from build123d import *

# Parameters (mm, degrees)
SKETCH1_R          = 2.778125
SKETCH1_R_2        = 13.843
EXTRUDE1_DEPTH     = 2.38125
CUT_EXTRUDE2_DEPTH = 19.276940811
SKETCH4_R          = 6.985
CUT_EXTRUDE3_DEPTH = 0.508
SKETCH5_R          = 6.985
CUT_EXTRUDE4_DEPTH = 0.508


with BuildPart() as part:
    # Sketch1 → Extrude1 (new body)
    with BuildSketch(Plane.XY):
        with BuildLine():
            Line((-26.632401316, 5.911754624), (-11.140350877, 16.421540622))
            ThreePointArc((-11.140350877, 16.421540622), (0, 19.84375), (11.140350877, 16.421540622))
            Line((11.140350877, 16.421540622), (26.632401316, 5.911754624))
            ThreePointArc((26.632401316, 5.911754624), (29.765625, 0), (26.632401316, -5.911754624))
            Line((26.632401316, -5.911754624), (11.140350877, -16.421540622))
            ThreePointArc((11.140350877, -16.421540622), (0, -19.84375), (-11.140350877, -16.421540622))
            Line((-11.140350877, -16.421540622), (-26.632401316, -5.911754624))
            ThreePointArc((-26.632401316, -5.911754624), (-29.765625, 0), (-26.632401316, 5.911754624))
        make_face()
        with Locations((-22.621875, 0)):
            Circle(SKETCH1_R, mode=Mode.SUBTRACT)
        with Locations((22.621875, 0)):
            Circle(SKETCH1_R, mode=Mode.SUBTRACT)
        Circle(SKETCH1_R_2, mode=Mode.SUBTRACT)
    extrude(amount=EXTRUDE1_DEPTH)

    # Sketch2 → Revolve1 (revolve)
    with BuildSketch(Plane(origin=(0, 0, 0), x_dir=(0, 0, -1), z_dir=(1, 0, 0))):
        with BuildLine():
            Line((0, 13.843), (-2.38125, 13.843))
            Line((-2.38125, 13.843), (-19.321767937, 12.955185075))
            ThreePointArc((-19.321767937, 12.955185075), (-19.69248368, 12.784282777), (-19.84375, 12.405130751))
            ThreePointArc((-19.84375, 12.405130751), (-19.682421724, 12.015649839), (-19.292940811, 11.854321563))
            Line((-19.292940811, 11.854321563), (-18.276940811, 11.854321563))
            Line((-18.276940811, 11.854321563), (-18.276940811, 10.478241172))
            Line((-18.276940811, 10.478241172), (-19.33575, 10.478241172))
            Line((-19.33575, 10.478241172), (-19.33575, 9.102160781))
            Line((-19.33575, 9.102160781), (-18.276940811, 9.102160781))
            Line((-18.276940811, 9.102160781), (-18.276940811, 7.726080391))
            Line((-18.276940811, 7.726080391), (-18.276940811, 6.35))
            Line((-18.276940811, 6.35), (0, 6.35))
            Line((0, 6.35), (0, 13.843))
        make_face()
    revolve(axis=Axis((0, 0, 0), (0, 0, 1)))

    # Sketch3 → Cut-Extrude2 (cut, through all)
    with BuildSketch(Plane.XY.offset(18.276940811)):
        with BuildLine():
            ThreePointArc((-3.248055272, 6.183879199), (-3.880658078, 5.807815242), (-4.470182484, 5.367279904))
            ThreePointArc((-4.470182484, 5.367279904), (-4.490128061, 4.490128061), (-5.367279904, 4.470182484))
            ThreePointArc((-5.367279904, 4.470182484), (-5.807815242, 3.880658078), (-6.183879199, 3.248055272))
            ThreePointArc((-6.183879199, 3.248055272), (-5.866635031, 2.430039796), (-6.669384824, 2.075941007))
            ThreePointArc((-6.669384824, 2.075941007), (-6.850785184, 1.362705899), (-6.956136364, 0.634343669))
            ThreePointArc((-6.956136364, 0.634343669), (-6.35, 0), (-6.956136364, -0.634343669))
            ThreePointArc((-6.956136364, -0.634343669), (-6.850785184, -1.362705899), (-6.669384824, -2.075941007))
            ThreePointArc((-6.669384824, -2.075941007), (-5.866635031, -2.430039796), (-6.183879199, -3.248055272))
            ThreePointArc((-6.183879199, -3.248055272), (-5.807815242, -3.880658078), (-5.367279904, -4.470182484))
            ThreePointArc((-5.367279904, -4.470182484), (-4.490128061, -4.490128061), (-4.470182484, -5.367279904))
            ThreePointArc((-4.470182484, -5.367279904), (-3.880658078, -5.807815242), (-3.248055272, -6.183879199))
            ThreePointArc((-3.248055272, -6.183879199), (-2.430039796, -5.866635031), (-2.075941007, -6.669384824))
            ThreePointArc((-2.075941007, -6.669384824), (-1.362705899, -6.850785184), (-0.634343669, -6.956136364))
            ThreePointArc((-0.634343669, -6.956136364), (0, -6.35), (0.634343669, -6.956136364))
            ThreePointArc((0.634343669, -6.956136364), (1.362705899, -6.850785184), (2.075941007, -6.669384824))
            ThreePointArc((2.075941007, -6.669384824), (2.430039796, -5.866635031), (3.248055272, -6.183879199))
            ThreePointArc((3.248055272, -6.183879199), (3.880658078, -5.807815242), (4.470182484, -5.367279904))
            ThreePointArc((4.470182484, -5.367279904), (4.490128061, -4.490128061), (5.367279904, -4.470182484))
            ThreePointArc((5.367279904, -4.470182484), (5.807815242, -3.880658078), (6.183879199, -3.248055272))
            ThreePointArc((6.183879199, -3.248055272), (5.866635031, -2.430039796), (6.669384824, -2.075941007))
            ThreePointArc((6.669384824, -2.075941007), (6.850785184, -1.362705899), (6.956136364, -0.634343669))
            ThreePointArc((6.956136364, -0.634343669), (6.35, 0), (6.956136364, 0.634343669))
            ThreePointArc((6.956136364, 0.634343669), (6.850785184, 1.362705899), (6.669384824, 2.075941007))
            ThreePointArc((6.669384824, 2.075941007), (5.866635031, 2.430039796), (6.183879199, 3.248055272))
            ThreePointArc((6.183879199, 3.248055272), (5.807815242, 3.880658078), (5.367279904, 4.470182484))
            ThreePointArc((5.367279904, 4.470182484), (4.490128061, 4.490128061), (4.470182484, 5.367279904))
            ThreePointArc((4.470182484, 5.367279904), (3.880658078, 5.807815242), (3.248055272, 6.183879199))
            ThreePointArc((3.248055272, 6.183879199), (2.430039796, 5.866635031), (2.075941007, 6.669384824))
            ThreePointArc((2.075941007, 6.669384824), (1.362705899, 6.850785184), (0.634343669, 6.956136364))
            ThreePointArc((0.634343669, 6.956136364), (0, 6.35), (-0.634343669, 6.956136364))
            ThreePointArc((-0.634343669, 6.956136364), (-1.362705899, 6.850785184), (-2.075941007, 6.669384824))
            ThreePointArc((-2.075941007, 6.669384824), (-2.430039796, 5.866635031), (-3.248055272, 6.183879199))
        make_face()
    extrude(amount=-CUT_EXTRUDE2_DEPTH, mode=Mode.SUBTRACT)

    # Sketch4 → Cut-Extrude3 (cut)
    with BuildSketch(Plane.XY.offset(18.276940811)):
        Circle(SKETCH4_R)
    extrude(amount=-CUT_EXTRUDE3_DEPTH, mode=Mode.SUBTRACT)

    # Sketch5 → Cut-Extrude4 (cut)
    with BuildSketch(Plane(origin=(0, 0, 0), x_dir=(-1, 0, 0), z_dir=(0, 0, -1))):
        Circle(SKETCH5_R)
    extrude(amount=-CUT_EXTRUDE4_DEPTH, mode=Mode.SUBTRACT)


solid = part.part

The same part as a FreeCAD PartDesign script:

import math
import FreeCAD as App
import Part
import Sketcher

V = App.Vector
Q = App.Units.Quantity

doc = App.newDocument("Part")
body = doc.addObject("PartDesign::Body", "Body")

# Sketch on XY plane
sketch1 = body.newObject("Sketcher::SketchObject", "Sketch")
sketch1.AttachmentSupport = (doc.getObject("XY_Plane"), [""])
sketch1.MapMode = "FlatFace"
sketch1.addGeometry([
    Part.LineSegment(V(-11.140351, 16.421541, 0), V(-26.632401, 5.911755, 0)),  # 0
    Part.ArcOfCircle(Part.Circle(V(-22.621875, 0, 0), V(0, 0, 1), 7.14375), math.radians(124.152915), math.radians(235.847085)),  # 1
    Part.LineSegment(V(-26.632401, -5.911755, 0), V(-11.140351, -16.421541, 0)),  # 2
    Part.ArcOfCircle(Part.Circle(V(0, 0, 0), V(0, 0, 1), 19.84375), math.radians(-124.152915), math.radians(-55.847085)),  # 3
    Part.LineSegment(V(11.140351, -16.421541, 0), V(26.632401, -5.911755, 0)),  # 4
    Part.ArcOfCircle(Part.Circle(V(22.621875, 0, 0), V(0, 0, 1), 7.14375), math.radians(-55.847085), math.radians(55.847085)),  # 5
    Part.LineSegment(V(26.632401, 5.911755, 0), V(11.140351, 16.421541, 0)),  # 6
    Part.ArcOfCircle(Part.Circle(V(0, 0, 0), V(0, 0, 1), 19.84375), math.radians(55.847085), math.radians(124.152915)),  # 7
    Part.Circle(V(22.621875, 0, 0), V(0, 0, 1), 2.778125),  # 8
    Part.Circle(V(0, 0, 0), V(0, 0, 1), 13.843),  # 9
    Part.Circle(V(-22.621875, 0, 0), V(0, 0, 1), 2.778125),  # 10
], False)
sketch1.addConstraint([
    Sketcher.Constraint("Tangent", 0, 2, 1, 1),
    Sketcher.Constraint("Tangent", 1, 2, 2, 1),
    Sketcher.Constraint("Tangent", 2, 2, 3, 1),
    Sketcher.Constraint("Tangent", 3, 2, 4, 1),
    Sketcher.Constraint("Tangent", 4, 2, 5, 1),
    Sketcher.Constraint("Tangent", 5, 2, 6, 1),
    Sketcher.Constraint("Tangent", 6, 2, 7, 1),
    Sketcher.Constraint("Tangent", 7, 2, 0, 1),
    Sketcher.Constraint("Coincident", 3, 3, -1, 1),
    Sketcher.Constraint("Coincident", 7, 3, -1, 1),
    Sketcher.Constraint("Coincident", 9, 3, -1, 1),
    Sketcher.Constraint("Coincident", 8, 3, 5, 3),
    Sketcher.Constraint("Coincident", 10, 3, 1, 3),
    Sketcher.Constraint("Equal", 1, 5),
    Sketcher.Constraint("Equal", 3, 7),
    Sketcher.Constraint("Equal", 8, 10),
    Sketcher.Constraint("Symmetric", 1, 3, 5, 3, -1, 1),
    Sketcher.Constraint("PointOnObject", 1, 3, -1),
    Sketcher.Constraint("Diameter", 9, Q("1.09 in")),
    Sketcher.Constraint("Diameter", 8, Q("0.21875 in")),
    Sketcher.Constraint("Radius", 1, Q("0.28125 in")),
    Sketcher.Constraint("Radius", 3, Q("0.78125 in")),
    Sketcher.Constraint("DistanceX", 1, 3, -1, 1, Q("0.890625 in")),
])
pad1 = body.newObject("PartDesign::Pad", "Pad")
pad1.Profile = sketch1
pad1.Length = Q("0.09375 in")

# Sketch on YZ plane
sketch2 = body.newObject("Sketcher::SketchObject", "Sketch001")
sketch2.AttachmentSupport = (doc.getObject("YZ_Plane"), [""])
sketch2.MapMode = "FlatFace"
sketch2.addGeometry([
    Part.LineSegment(V(13.843, 0, 0), V(13.843, 2.38125, 0)),  # 0
    Part.LineSegment(V(13.843, 2.38125, 0), V(12.955185, 19.321768, 0)),  # 1
    Part.ArcOfCircle(Part.Circle(V(12.405131, 19.292941, 0), V(0, 0, 1), 0.550809), math.radians(3), math.radians(90)),  # 2
    Part.ArcOfCircle(Part.Circle(V(12.405131, 19.292941, 0), V(0, 0, 1), 0.550809), math.radians(90), math.radians(180)),  # 3
    Part.LineSegment(V(11.854322, 19.292941, 0), V(11.854322, 18.276941, 0)),  # 4
    Part.LineSegment(V(11.854322, 18.276941, 0), V(10.478241, 18.276941, 0)),  # 5
    Part.LineSegment(V(10.478241, 18.276941, 0), V(10.478241, 19.33575, 0)),  # 6
    Part.LineSegment(V(10.478241, 19.33575, 0), V(9.102161, 19.33575, 0)),  # 7
    Part.LineSegment(V(9.102161, 19.33575, 0), V(9.102161, 18.276941, 0)),  # 8
    Part.LineSegment(V(9.102161, 18.276941, 0), V(6.35, 18.276941, 0)),  # 9
    Part.LineSegment(V(6.35, 18.276941, 0), V(6.35, 0, 0)),  # 10
    Part.LineSegment(V(6.35, 0, 0), V(13.843, 0, 0)),  # 11
], False)
sketch2.addConstraint([
    Sketcher.Constraint("Coincident", 0, 2, 1, 1),
    Sketcher.Constraint("Tangent", 1, 2, 2, 1),
    Sketcher.Constraint("Tangent", 2, 2, 3, 1),
    Sketcher.Constraint("Tangent", 3, 2, 4, 1),
    Sketcher.Constraint("Coincident", 4, 2, 5, 1),
    Sketcher.Constraint("Coincident", 5, 2, 6, 1),
    Sketcher.Constraint("Coincident", 6, 2, 7, 1),
    Sketcher.Constraint("Coincident", 7, 2, 8, 1),
    Sketcher.Constraint("Coincident", 8, 2, 9, 1),
    Sketcher.Constraint("Coincident", 9, 2, 10, 1),
    Sketcher.Constraint("Coincident", 10, 2, 11, 1),
    Sketcher.Constraint("Coincident", 11, 2, 0, 1),
    Sketcher.Constraint("Vertical", 0),
    Sketcher.Constraint("Vertical", 4),
    Sketcher.Constraint("Horizontal", 5),
    Sketcher.Constraint("Vertical", 6),
    Sketcher.Constraint("Horizontal", 7),
    Sketcher.Constraint("Vertical", 8),
    Sketcher.Constraint("Horizontal", 9),
    Sketcher.Constraint("Vertical", 10),
    Sketcher.Constraint("Horizontal", 11),
    Sketcher.Constraint("Equal", 2, 3),
    Sketcher.Constraint("PointOnObject", 10, 2, -1),
    Sketcher.Constraint("Horizontal", 5, 2, 8, 2),
    Sketcher.Constraint("Vertical", 3, 3, 2, 2),
    Sketcher.Constraint("Equal", 5, 7),
    Sketcher.Constraint("Angle", 1, Q("93 deg")),
    Sketcher.Constraint("DistanceY", 4, 2, 4, 1, Q("0.04 in")),
    Sketcher.Constraint("DistanceX", 11, 1, 11, 2, Q("0.295 in")),
    Sketcher.Constraint("DistanceY", 0, 1, 0, 2, Q("0.09375 in")),
    Sketcher.Constraint("DistanceX", -1, 1, 9, 2, Q("0.25 in")),
    Sketcher.Constraint("DistanceY", -1, 1, 2, 2, Q("0.78125 in")),
    Sketcher.Constraint("Radius", 2, Q("0.550809 mm")),
    Sketcher.Constraint("DistanceX", 5, 2, 5, 1, Q("1.37608 mm")),
    Sketcher.Constraint("DistanceY", 6, 1, 6, 2, Q("1.058809 mm")),
])
revolution = body.newObject("PartDesign::Revolution", "Revolution")
revolution.Profile = sketch2
revolution.ReferenceAxis = (sketch2, ["V_Axis"])
revolution.Angle = 360

# Sketch on XY plane
sketch3 = body.newObject("Sketcher::SketchObject", "Sketch002")
sketch3.AttachmentSupport = (doc.getObject("XY_Plane"), [""])
sketch3.MapMode = "FlatFace"
sketch3.AttachmentOffset = App.Placement(V(0, 0, 18.276941), App.Rotation())
sketch3.addGeometry([
    Part.ArcOfCircle(Part.Circle(V(0, 0, 0), V(0, 0, 1), 6.985), math.radians(117.710502), math.radians(129.789497)),  # 0
    Part.ArcOfCircle(Part.Circle(V(-4.939141, 4.939141, 0), V(0, 0, 1), 0.635), math.radians(-132.394749), math.radians(42.394749)),  # 1
    Part.ArcOfCircle(Part.Circle(V(0, 0, 0), V(0, 0, 1), 6.985), math.radians(140.210503), math.radians(152.289498)),  # 2
    Part.ArcOfCircle(Part.Circle(V(-6.453299, 2.673044, 0), V(0, 0, 1), 0.635), math.radians(-109.894749), math.radians(64.894749)),  # 3
    Part.ArcOfCircle(Part.Circle(V(0, 0, 0), V(0, 0, 1), 6.985), math.radians(162.710502), math.radians(174.789497)),  # 4
    Part.ArcOfCircle(Part.Circle(V(-6.985, 0, 0), V(0, 0, 1), 0.635), math.radians(-87.394749), math.radians(87.394749)),  # 5
    Part.ArcOfCircle(Part.Circle(V(0, 0, 0), V(0, 0, 1), 6.985), math.radians(-174.789497), math.radians(-162.710502)),  # 6
    Part.ArcOfCircle(Part.Circle(V(-6.453299, -2.673044, 0), V(0, 0, 1), 0.635), math.radians(-64.894749), math.radians(109.894749)),  # 7
    Part.ArcOfCircle(Part.Circle(V(0, 0, 0), V(0, 0, 1), 6.985), math.radians(-152.289498), math.radians(-140.210503)),  # 8
    Part.ArcOfCircle(Part.Circle(V(-4.939141, -4.939141, 0), V(0, 0, 1), 0.635), math.radians(-42.394749), math.radians(132.394749)),  # 9
    Part.ArcOfCircle(Part.Circle(V(0, 0, 0), V(0, 0, 1), 6.985), math.radians(-129.789497), math.radians(-117.710502)),  # 10
    Part.ArcOfCircle(Part.Circle(V(-2.673044, -6.453299, 0), V(0, 0, 1), 0.635), math.radians(-19.894749), math.radians(154.894749)),  # 11
    Part.ArcOfCircle(Part.Circle(V(0, 0, 0), V(0, 0, 1), 6.985), math.radians(-107.289498), math.radians(-95.210503)),  # 12
    Part.ArcOfCircle(Part.Circle(V(0, -6.985, 0), V(0, 0, 1), 0.635), math.radians(2.605251), math.radians(177.394749)),  # 13
    Part.ArcOfCircle(Part.Circle(V(0, 0, 0), V(0, 0, 1), 6.985), math.radians(-84.789497), math.radians(-72.710502)),  # 14
    Part.ArcOfCircle(Part.Circle(V(2.673044, -6.453299, 0), V(0, 0, 1), 0.635), math.radians(25.105251), math.radians(199.894749)),  # 15
    Part.ArcOfCircle(Part.Circle(V(0, 0, 0), V(0, 0, 1), 6.985), math.radians(-62.289498), math.radians(-50.210503)),  # 16
    Part.ArcOfCircle(Part.Circle(V(4.939141, -4.939141, 0), V(0, 0, 1), 0.635), math.radians(47.605251), math.radians(222.394749)),  # 17
    Part.ArcOfCircle(Part.Circle(V(0, 0, 0), V(0, 0, 1), 6.985), math.radians(-39.789497), math.radians(-27.710502)),  # 18
    Part.ArcOfCircle(Part.Circle(V(6.453299, -2.673044, 0), V(0, 0, 1), 0.635), math.radians(70.105251), math.radians(244.894749)),  # 19
    Part.ArcOfCircle(Part.Circle(V(0, 0, 0), V(0, 0, 1), 6.985), math.radians(-17.289498), math.radians(-5.210503)),  # 20
    Part.ArcOfCircle(Part.Circle(V(6.985, 0, 0), V(0, 0, 1), 0.635), math.radians(92.605251), math.radians(267.394749)),  # 21
    Part.ArcOfCircle(Part.Circle(V(0, 0, 0), V(0, 0, 1), 6.985), math.radians(5.210503), math.radians(17.289498)),  # 22
    Part.ArcOfCircle(Part.Circle(V(6.453299, 2.673044, 0), V(0, 0, 1), 0.635), math.radians(115.105251), math.radians(289.894749)),  # 23
    Part.ArcOfCircle(Part.Circle(V(0, 0, 0), V(0, 0, 1), 6.985), math.radians(27.710502), math.radians(39.789497)),  # 24
    Part.ArcOfCircle(Part.Circle(V(4.939141, 4.939141, 0), V(0, 0, 1), 0.635), math.radians(137.605251), math.radians(312.394749)),  # 25
    Part.ArcOfCircle(Part.Circle(V(0, 0, 0), V(0, 0, 1), 6.985), math.radians(50.210503), math.radians(62.289498)),  # 26
    Part.ArcOfCircle(Part.Circle(V(2.673044, 6.453299, 0), V(0, 0, 1), 0.635), math.radians(160.105251), math.radians(334.894749)),  # 27
    Part.ArcOfCircle(Part.Circle(V(0, 0, 0), V(0, 0, 1), 6.985), math.radians(72.710502), math.radians(84.789497)),  # 28
    Part.ArcOfCircle(Part.Circle(V(0, 6.985, 0), V(0, 0, 1), 0.635), math.radians(-177.394749), math.radians(-2.605251)),  # 29
    Part.ArcOfCircle(Part.Circle(V(0, 0, 0), V(0, 0, 1), 6.985), math.radians(95.210503), math.radians(107.289498)),  # 30
    Part.ArcOfCircle(Part.Circle(V(-2.673044, 6.453299, 0), V(0, 0, 1), 0.635), math.radians(-154.894749), math.radians(19.894749)),  # 31
], False)
sketch3.addConstraint([
    Sketcher.Constraint("Coincident", 0, 2, 1, 2),
    Sketcher.Constraint("Coincident", 1, 1, 2, 1),
    Sketcher.Constraint("Coincident", 2, 2, 3, 2),
    Sketcher.Constraint("Coincident", 3, 1, 4, 1),
    Sketcher.Constraint("Coincident", 4, 2, 5, 2),
    Sketcher.Constraint("Coincident", 5, 1, 6, 1),
    Sketcher.Constraint("Coincident", 6, 2, 7, 2),
    Sketcher.Constraint("Coincident", 7, 1, 8, 1),
    Sketcher.Constraint("Coincident", 8, 2, 9, 2),
    Sketcher.Constraint("Coincident", 9, 1, 10, 1),
    Sketcher.Constraint("Coincident", 10, 2, 11, 2),
    Sketcher.Constraint("Coincident", 11, 1, 12, 1),
    Sketcher.Constraint("Coincident", 12, 2, 13, 2),
    Sketcher.Constraint("Coincident", 13, 1, 14, 1),
    Sketcher.Constraint("Coincident", 14, 2, 15, 2),
    Sketcher.Constraint("Coincident", 15, 1, 16, 1),
    Sketcher.Constraint("Coincident", 16, 2, 17, 2),
    Sketcher.Constraint("Coincident", 17, 1, 18, 1),
    Sketcher.Constraint("Coincident", 18, 2, 19, 2),
    Sketcher.Constraint("Coincident", 19, 1, 20, 1),
    Sketcher.Constraint("Coincident", 20, 2, 21, 2),
    Sketcher.Constraint("Coincident", 21, 1, 22, 1),
    Sketcher.Constraint("Coincident", 22, 2, 23, 2),
    Sketcher.Constraint("Coincident", 23, 1, 24, 1),
    Sketcher.Constraint("Coincident", 24, 2, 25, 2),
    Sketcher.Constraint("Coincident", 25, 1, 26, 1),
    Sketcher.Constraint("Coincident", 26, 2, 27, 2),
    Sketcher.Constraint("Coincident", 27, 1, 28, 1),
    Sketcher.Constraint("Coincident", 28, 2, 29, 2),
    Sketcher.Constraint("Coincident", 29, 1, 30, 1),
    Sketcher.Constraint("Coincident", 30, 2, 31, 2),
    Sketcher.Constraint("Coincident", 31, 1, 0, 1),
    Sketcher.Constraint("Coincident", 0, 3, -1, 1),
    Sketcher.Constraint("Coincident", 2, 3, -1, 1),
    Sketcher.Constraint("Coincident", 4, 3, -1, 1),
    Sketcher.Constraint("Coincident", 6, 3, -1, 1),
    Sketcher.Constraint("Coincident", 8, 3, -1, 1),
    Sketcher.Constraint("Coincident", 10, 3, -1, 1),
    Sketcher.Constraint("Coincident", 12, 3, -1, 1),
    Sketcher.Constraint("Coincident", 14, 3, -1, 1),
    Sketcher.Constraint("Coincident", 16, 3, -1, 1),
    Sketcher.Constraint("Coincident", 18, 3, -1, 1),
    Sketcher.Constraint("Coincident", 20, 3, -1, 1),
    Sketcher.Constraint("Coincident", 22, 3, -1, 1),
    Sketcher.Constraint("Coincident", 24, 3, -1, 1),
    Sketcher.Constraint("Coincident", 26, 3, -1, 1),
    Sketcher.Constraint("Coincident", 28, 3, -1, 1),
    Sketcher.Constraint("Coincident", 30, 3, -1, 1),
    Sketcher.Constraint("Equal", 0, 2),
    Sketcher.Constraint("Equal", 1, 3),
    Sketcher.Constraint("Equal", 2, 4),
    Sketcher.Constraint("Equal", 3, 5),
    Sketcher.Constraint("Equal", 4, 6),
    Sketcher.Constraint("Equal", 5, 7),
    Sketcher.Constraint("Equal", 6, 8),
    Sketcher.Constraint("Equal", 7, 9),
    Sketcher.Constraint("Equal", 8, 10),
    Sketcher.Constraint("Equal", 9, 11),
    Sketcher.Constraint("Equal", 10, 12),
    Sketcher.Constraint("Equal", 11, 13),
    Sketcher.Constraint("Equal", 12, 14),
    Sketcher.Constraint("Equal", 13, 15),
    Sketcher.Constraint("Equal", 14, 16),
    Sketcher.Constraint("Equal", 15, 17),
    Sketcher.Constraint("Equal", 16, 18),
    Sketcher.Constraint("Equal", 17, 19),
    Sketcher.Constraint("Equal", 18, 20),
    Sketcher.Constraint("Equal", 19, 21),
    Sketcher.Constraint("Equal", 20, 22),
    Sketcher.Constraint("Equal", 21, 23),
    Sketcher.Constraint("Equal", 22, 24),
    Sketcher.Constraint("Equal", 23, 25),
    Sketcher.Constraint("Equal", 24, 26),
    Sketcher.Constraint("Equal", 25, 27),
    Sketcher.Constraint("Equal", 26, 28),
    Sketcher.Constraint("Equal", 27, 29),
    Sketcher.Constraint("Equal", 28, 30),
    Sketcher.Constraint("Equal", 29, 31),
    Sketcher.Constraint("Symmetric", 1, 3, 17, 3, -1, 1),
    Sketcher.Constraint("Symmetric", 3, 3, 19, 3, -1, 1),
    Sketcher.Constraint("Symmetric", 5, 3, 21, 3, -1, 1),
    Sketcher.Constraint("Symmetric", 7, 3, 23, 3, -1, 1),
    Sketcher.Constraint("Symmetric", 9, 3, 25, 3, -1, 1),
    Sketcher.Constraint("Symmetric", 11, 3, 27, 3, -1, 1),
    Sketcher.Constraint("Symmetric", 13, 3, 29, 3, -1, 1),
    Sketcher.Constraint("Symmetric", 15, 3, 31, 3, -1, 1),
    Sketcher.Constraint("Symmetric", 11, 3, 15, 3, -2),
    Sketcher.Constraint("Symmetric", 9, 3, 17, 3, -2),
    Sketcher.Constraint("Symmetric", 7, 3, 19, 3, -2),
    Sketcher.Constraint("PointOnObject", 5, 3, -1),
    Sketcher.Constraint("PointOnObject", 13, 3, -2),
    Sketcher.Constraint("Radius", 0, Q("0.275 in")),
    Sketcher.Constraint("Radius", 1, Q("0.025 in")),
    Sketcher.Constraint("DistanceX", 5, 3, -1, 1, Q("0.275 in")),
    Sketcher.Constraint("DistanceY", 13, 3, -1, 1, Q("0.275 in")),
    Sketcher.Constraint("DistanceX", 3, 3, -1, 1, Q("6.453299 mm")),
    Sketcher.Constraint("DistanceY", 11, 3, -1, 1, Q("6.453299 mm")),
    Sketcher.Constraint("DistanceX", 1, 3, -1, 1, Q("4.939141 mm")),
    Sketcher.Constraint("DistanceY", -1, 1, 1, 3, Q("4.939141 mm")),
    Sketcher.Constraint("DistanceX", 2, 2, -1, 1, Q("6.183879 mm")),
    Sketcher.Constraint("DistanceY", 10, 2, -1, 1, Q("6.183879 mm")),
])
pocket1 = body.newObject("PartDesign::Pocket", "Pocket")
pocket1.Profile = sketch3
pocket1.Type = "ThroughAll"

# Sketch on XY plane
sketch4 = body.newObject("Sketcher::SketchObject", "Sketch003")
sketch4.AttachmentSupport = (doc.getObject("XY_Plane"), [""])
sketch4.MapMode = "FlatFace"
sketch4.AttachmentOffset = App.Placement(V(0, 0, 18.276941), App.Rotation())
sketch4.addGeometry(Part.Circle(V(0, 0, 0), V(0, 0, 1), 6.985), False)
sketch4.addConstraint([
    Sketcher.Constraint("Coincident", 0, 3, -1, 1),
    Sketcher.Constraint("Diameter", 0, Q("0.55 in")),
])
pocket2 = body.newObject("PartDesign::Pocket", "Pocket001")
pocket2.Profile = sketch4
pocket2.Length = Q("0.02 in")

# Sketch on XY plane
sketch5 = body.newObject("Sketcher::SketchObject", "Sketch004")
sketch5.AttachmentSupport = (doc.getObject("XY_Plane"), [""])
sketch5.MapMode = "FlatFace"
sketch5.addGeometry(Part.Circle(V(0, 0, 0), V(0, 0, 1), 6.985), False)
sketch5.addConstraint([
    Sketcher.Constraint("Coincident", 0, 3, -1, 1),
    Sketcher.Constraint("Diameter", 0, Q("0.55 in")),
])
pocket3 = body.newObject("PartDesign::Pocket", "Pocket002")
pocket3.Profile = sketch5
pocket3.Length = Q("0.02 in")
pocket3.Reversed = True

doc.recompute()
